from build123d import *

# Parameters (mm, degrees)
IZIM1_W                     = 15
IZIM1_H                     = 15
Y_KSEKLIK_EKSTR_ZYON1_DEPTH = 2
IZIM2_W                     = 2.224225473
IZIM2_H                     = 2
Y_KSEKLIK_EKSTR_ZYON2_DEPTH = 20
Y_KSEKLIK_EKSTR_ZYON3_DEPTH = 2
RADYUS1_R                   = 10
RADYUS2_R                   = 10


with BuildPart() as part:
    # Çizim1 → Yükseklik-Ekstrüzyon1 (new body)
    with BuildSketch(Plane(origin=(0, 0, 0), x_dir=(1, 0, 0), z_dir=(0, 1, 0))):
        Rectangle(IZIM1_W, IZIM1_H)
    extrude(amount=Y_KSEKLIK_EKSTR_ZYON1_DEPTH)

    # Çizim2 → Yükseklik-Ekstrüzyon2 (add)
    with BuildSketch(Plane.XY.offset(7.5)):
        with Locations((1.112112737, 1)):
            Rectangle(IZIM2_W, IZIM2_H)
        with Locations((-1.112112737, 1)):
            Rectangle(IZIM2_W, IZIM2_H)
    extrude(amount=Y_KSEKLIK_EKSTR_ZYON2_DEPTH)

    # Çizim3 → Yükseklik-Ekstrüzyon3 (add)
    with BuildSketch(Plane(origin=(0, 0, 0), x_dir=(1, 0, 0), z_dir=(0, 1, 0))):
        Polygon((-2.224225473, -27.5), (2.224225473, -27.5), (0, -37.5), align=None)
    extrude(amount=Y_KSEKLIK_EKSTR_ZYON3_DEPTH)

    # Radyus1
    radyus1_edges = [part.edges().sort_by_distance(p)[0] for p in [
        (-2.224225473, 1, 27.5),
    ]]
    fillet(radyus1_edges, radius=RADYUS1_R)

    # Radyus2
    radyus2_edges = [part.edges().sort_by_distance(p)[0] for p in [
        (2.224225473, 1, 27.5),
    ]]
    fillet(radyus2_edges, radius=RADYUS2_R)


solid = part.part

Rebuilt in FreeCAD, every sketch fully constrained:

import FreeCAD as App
import Part
import Sketcher


def edges_at(feature, points):
    """Names of the edges that pass closest to the given points."""
    edges = feature.Shape.Edges
    near = lambda p: min(range(len(edges)), key=lambda i: edges[i].distToShape(Part.Vertex(*p))[0])
    return sorted({f"Edge{near(p) + 1}" for p in points})


def add_polygon(sketch, points):
    """Adds a closed chain of lines whose ends are joined by coincident constraints."""
    first, n = sketch.GeometryCount, len(points)
    for a, b in zip(points, points[1:] + points[:1]):
        sketch.addGeometry(Part.LineSegment(App.Vector(*a, 0), App.Vector(*b, 0)), False)
    for i in range(n):
        sketch.addConstraint(Sketcher.Constraint("Coincident", first + i, 2, first + (i + 1) % n, 1))

doc = App.newDocument("Part")
body = doc.addObject("PartDesign::Body", "Body")

# Sketch on XZ plane
sketch1 = body.newObject("Sketcher::SketchObject", "Sketch")
sketch1.AttachmentSupport = (doc.getObject("XZ_Plane"), [""])
sketch1.MapMode = "FlatFace"
add_polygon(sketch1, [(-8, -8), (-8, 8), (8, 8), (8, -8)])  # lines 0-3
sketch1.addConstraint([
    Sketcher.Constraint("Vertical", 0),
    Sketcher.Constraint("Horizontal", 1),
    Sketcher.Constraint("Vertical", 2),
    Sketcher.Constraint("Horizontal", 3),
    Sketcher.Constraint("Symmetric", 0, 2, 2, 2, -1, 1),
    Sketcher.Constraint("Equal", 3, 0),
    Sketcher.Constraint("DistanceX", 1, 1, 1, 2, 15.0),
])
pad1 = body.newObject("PartDesign::Pad", "Pad")
pad1.Profile = sketch1
pad1.Length = 2
pad1.Reversed = True

# Sketch on XY plane
sketch2 = body.newObject("Sketcher::SketchObject", "Sketch001")
sketch2.AttachmentSupport = (doc.getObject("XY_Plane"), [""])
sketch2.MapMode = "FlatFace"
sketch2.AttachmentOffset = App.Placement(App.Vector(0, 0, 7.5), App.Rotation())
add_polygon(sketch2, [(2.2, 0), (2.2, 2), (-2.2, 2), (-2.2, 0)])  # lines 0-3
sketch2.addConstraint([
    Sketcher.Constraint("Vertical", 0),
    Sketcher.Constraint("Horizontal", 1),
    Sketcher.Constraint("Vertical", 2),
    Sketcher.Constraint("Horizontal", 3),
    Sketcher.Constraint("Symmetric", 2, 2, 3, 2, -1, 1),
    Sketcher.Constraint("DistanceY", 0, 1, 0, 2, 2.0),
    Sketcher.Constraint("DistanceX", 1, 2, 1, 1, 4.448451),
])
pad2 = body.newObject("PartDesign::Pad", "Pad001")
pad2.Profile = sketch2
pad2.Length = 20

# Sketch on XZ plane
sketch3 = body.newObject("Sketcher::SketchObject", "Sketch002")
sketch3.AttachmentSupport = (doc.getObject("XZ_Plane"), [""])
sketch3.MapMode = "FlatFace"
add_polygon(sketch3, [(2.2, 27.5), (-2.2, 27.5), (0, 37.5)])  # lines 0-2
sketch3.addConstraint([
    Sketcher.Constraint("Horizontal", 0),
    Sketcher.Constraint("PointOnObject", 1, 2, -2),
    Sketcher.Constraint("Equal", 1, 2),
    Sketcher.Constraint("DistanceY", 0, 2, 1, 2, 10.0),
    Sketcher.Constraint("DistanceY", -1, 1, 0, 2, 27.5),
    Sketcher.Constraint("DistanceX", 0, 2, 0, 1, 4.448451),
])
pad3 = body.newObject("PartDesign::Pad", "Pad002")
pad3.Profile = sketch3
pad3.Length = 2
pad3.Reversed = True
doc.recompute()

fillet = body.newObject("PartDesign::Fillet", "Fillet")
fillet.Base = (pad3, edges_at(pad3, [(-2.224, 1, 27.5)]))
fillet.Radius = 10
doc.recompute()

fillet2 = body.newObject("PartDesign::Fillet", "Fillet001")
fillet2.Base = (fillet, edges_at(fillet, [(2.224, 1, 27.5)]))
fillet2.Radius = 10

doc.recompute()
